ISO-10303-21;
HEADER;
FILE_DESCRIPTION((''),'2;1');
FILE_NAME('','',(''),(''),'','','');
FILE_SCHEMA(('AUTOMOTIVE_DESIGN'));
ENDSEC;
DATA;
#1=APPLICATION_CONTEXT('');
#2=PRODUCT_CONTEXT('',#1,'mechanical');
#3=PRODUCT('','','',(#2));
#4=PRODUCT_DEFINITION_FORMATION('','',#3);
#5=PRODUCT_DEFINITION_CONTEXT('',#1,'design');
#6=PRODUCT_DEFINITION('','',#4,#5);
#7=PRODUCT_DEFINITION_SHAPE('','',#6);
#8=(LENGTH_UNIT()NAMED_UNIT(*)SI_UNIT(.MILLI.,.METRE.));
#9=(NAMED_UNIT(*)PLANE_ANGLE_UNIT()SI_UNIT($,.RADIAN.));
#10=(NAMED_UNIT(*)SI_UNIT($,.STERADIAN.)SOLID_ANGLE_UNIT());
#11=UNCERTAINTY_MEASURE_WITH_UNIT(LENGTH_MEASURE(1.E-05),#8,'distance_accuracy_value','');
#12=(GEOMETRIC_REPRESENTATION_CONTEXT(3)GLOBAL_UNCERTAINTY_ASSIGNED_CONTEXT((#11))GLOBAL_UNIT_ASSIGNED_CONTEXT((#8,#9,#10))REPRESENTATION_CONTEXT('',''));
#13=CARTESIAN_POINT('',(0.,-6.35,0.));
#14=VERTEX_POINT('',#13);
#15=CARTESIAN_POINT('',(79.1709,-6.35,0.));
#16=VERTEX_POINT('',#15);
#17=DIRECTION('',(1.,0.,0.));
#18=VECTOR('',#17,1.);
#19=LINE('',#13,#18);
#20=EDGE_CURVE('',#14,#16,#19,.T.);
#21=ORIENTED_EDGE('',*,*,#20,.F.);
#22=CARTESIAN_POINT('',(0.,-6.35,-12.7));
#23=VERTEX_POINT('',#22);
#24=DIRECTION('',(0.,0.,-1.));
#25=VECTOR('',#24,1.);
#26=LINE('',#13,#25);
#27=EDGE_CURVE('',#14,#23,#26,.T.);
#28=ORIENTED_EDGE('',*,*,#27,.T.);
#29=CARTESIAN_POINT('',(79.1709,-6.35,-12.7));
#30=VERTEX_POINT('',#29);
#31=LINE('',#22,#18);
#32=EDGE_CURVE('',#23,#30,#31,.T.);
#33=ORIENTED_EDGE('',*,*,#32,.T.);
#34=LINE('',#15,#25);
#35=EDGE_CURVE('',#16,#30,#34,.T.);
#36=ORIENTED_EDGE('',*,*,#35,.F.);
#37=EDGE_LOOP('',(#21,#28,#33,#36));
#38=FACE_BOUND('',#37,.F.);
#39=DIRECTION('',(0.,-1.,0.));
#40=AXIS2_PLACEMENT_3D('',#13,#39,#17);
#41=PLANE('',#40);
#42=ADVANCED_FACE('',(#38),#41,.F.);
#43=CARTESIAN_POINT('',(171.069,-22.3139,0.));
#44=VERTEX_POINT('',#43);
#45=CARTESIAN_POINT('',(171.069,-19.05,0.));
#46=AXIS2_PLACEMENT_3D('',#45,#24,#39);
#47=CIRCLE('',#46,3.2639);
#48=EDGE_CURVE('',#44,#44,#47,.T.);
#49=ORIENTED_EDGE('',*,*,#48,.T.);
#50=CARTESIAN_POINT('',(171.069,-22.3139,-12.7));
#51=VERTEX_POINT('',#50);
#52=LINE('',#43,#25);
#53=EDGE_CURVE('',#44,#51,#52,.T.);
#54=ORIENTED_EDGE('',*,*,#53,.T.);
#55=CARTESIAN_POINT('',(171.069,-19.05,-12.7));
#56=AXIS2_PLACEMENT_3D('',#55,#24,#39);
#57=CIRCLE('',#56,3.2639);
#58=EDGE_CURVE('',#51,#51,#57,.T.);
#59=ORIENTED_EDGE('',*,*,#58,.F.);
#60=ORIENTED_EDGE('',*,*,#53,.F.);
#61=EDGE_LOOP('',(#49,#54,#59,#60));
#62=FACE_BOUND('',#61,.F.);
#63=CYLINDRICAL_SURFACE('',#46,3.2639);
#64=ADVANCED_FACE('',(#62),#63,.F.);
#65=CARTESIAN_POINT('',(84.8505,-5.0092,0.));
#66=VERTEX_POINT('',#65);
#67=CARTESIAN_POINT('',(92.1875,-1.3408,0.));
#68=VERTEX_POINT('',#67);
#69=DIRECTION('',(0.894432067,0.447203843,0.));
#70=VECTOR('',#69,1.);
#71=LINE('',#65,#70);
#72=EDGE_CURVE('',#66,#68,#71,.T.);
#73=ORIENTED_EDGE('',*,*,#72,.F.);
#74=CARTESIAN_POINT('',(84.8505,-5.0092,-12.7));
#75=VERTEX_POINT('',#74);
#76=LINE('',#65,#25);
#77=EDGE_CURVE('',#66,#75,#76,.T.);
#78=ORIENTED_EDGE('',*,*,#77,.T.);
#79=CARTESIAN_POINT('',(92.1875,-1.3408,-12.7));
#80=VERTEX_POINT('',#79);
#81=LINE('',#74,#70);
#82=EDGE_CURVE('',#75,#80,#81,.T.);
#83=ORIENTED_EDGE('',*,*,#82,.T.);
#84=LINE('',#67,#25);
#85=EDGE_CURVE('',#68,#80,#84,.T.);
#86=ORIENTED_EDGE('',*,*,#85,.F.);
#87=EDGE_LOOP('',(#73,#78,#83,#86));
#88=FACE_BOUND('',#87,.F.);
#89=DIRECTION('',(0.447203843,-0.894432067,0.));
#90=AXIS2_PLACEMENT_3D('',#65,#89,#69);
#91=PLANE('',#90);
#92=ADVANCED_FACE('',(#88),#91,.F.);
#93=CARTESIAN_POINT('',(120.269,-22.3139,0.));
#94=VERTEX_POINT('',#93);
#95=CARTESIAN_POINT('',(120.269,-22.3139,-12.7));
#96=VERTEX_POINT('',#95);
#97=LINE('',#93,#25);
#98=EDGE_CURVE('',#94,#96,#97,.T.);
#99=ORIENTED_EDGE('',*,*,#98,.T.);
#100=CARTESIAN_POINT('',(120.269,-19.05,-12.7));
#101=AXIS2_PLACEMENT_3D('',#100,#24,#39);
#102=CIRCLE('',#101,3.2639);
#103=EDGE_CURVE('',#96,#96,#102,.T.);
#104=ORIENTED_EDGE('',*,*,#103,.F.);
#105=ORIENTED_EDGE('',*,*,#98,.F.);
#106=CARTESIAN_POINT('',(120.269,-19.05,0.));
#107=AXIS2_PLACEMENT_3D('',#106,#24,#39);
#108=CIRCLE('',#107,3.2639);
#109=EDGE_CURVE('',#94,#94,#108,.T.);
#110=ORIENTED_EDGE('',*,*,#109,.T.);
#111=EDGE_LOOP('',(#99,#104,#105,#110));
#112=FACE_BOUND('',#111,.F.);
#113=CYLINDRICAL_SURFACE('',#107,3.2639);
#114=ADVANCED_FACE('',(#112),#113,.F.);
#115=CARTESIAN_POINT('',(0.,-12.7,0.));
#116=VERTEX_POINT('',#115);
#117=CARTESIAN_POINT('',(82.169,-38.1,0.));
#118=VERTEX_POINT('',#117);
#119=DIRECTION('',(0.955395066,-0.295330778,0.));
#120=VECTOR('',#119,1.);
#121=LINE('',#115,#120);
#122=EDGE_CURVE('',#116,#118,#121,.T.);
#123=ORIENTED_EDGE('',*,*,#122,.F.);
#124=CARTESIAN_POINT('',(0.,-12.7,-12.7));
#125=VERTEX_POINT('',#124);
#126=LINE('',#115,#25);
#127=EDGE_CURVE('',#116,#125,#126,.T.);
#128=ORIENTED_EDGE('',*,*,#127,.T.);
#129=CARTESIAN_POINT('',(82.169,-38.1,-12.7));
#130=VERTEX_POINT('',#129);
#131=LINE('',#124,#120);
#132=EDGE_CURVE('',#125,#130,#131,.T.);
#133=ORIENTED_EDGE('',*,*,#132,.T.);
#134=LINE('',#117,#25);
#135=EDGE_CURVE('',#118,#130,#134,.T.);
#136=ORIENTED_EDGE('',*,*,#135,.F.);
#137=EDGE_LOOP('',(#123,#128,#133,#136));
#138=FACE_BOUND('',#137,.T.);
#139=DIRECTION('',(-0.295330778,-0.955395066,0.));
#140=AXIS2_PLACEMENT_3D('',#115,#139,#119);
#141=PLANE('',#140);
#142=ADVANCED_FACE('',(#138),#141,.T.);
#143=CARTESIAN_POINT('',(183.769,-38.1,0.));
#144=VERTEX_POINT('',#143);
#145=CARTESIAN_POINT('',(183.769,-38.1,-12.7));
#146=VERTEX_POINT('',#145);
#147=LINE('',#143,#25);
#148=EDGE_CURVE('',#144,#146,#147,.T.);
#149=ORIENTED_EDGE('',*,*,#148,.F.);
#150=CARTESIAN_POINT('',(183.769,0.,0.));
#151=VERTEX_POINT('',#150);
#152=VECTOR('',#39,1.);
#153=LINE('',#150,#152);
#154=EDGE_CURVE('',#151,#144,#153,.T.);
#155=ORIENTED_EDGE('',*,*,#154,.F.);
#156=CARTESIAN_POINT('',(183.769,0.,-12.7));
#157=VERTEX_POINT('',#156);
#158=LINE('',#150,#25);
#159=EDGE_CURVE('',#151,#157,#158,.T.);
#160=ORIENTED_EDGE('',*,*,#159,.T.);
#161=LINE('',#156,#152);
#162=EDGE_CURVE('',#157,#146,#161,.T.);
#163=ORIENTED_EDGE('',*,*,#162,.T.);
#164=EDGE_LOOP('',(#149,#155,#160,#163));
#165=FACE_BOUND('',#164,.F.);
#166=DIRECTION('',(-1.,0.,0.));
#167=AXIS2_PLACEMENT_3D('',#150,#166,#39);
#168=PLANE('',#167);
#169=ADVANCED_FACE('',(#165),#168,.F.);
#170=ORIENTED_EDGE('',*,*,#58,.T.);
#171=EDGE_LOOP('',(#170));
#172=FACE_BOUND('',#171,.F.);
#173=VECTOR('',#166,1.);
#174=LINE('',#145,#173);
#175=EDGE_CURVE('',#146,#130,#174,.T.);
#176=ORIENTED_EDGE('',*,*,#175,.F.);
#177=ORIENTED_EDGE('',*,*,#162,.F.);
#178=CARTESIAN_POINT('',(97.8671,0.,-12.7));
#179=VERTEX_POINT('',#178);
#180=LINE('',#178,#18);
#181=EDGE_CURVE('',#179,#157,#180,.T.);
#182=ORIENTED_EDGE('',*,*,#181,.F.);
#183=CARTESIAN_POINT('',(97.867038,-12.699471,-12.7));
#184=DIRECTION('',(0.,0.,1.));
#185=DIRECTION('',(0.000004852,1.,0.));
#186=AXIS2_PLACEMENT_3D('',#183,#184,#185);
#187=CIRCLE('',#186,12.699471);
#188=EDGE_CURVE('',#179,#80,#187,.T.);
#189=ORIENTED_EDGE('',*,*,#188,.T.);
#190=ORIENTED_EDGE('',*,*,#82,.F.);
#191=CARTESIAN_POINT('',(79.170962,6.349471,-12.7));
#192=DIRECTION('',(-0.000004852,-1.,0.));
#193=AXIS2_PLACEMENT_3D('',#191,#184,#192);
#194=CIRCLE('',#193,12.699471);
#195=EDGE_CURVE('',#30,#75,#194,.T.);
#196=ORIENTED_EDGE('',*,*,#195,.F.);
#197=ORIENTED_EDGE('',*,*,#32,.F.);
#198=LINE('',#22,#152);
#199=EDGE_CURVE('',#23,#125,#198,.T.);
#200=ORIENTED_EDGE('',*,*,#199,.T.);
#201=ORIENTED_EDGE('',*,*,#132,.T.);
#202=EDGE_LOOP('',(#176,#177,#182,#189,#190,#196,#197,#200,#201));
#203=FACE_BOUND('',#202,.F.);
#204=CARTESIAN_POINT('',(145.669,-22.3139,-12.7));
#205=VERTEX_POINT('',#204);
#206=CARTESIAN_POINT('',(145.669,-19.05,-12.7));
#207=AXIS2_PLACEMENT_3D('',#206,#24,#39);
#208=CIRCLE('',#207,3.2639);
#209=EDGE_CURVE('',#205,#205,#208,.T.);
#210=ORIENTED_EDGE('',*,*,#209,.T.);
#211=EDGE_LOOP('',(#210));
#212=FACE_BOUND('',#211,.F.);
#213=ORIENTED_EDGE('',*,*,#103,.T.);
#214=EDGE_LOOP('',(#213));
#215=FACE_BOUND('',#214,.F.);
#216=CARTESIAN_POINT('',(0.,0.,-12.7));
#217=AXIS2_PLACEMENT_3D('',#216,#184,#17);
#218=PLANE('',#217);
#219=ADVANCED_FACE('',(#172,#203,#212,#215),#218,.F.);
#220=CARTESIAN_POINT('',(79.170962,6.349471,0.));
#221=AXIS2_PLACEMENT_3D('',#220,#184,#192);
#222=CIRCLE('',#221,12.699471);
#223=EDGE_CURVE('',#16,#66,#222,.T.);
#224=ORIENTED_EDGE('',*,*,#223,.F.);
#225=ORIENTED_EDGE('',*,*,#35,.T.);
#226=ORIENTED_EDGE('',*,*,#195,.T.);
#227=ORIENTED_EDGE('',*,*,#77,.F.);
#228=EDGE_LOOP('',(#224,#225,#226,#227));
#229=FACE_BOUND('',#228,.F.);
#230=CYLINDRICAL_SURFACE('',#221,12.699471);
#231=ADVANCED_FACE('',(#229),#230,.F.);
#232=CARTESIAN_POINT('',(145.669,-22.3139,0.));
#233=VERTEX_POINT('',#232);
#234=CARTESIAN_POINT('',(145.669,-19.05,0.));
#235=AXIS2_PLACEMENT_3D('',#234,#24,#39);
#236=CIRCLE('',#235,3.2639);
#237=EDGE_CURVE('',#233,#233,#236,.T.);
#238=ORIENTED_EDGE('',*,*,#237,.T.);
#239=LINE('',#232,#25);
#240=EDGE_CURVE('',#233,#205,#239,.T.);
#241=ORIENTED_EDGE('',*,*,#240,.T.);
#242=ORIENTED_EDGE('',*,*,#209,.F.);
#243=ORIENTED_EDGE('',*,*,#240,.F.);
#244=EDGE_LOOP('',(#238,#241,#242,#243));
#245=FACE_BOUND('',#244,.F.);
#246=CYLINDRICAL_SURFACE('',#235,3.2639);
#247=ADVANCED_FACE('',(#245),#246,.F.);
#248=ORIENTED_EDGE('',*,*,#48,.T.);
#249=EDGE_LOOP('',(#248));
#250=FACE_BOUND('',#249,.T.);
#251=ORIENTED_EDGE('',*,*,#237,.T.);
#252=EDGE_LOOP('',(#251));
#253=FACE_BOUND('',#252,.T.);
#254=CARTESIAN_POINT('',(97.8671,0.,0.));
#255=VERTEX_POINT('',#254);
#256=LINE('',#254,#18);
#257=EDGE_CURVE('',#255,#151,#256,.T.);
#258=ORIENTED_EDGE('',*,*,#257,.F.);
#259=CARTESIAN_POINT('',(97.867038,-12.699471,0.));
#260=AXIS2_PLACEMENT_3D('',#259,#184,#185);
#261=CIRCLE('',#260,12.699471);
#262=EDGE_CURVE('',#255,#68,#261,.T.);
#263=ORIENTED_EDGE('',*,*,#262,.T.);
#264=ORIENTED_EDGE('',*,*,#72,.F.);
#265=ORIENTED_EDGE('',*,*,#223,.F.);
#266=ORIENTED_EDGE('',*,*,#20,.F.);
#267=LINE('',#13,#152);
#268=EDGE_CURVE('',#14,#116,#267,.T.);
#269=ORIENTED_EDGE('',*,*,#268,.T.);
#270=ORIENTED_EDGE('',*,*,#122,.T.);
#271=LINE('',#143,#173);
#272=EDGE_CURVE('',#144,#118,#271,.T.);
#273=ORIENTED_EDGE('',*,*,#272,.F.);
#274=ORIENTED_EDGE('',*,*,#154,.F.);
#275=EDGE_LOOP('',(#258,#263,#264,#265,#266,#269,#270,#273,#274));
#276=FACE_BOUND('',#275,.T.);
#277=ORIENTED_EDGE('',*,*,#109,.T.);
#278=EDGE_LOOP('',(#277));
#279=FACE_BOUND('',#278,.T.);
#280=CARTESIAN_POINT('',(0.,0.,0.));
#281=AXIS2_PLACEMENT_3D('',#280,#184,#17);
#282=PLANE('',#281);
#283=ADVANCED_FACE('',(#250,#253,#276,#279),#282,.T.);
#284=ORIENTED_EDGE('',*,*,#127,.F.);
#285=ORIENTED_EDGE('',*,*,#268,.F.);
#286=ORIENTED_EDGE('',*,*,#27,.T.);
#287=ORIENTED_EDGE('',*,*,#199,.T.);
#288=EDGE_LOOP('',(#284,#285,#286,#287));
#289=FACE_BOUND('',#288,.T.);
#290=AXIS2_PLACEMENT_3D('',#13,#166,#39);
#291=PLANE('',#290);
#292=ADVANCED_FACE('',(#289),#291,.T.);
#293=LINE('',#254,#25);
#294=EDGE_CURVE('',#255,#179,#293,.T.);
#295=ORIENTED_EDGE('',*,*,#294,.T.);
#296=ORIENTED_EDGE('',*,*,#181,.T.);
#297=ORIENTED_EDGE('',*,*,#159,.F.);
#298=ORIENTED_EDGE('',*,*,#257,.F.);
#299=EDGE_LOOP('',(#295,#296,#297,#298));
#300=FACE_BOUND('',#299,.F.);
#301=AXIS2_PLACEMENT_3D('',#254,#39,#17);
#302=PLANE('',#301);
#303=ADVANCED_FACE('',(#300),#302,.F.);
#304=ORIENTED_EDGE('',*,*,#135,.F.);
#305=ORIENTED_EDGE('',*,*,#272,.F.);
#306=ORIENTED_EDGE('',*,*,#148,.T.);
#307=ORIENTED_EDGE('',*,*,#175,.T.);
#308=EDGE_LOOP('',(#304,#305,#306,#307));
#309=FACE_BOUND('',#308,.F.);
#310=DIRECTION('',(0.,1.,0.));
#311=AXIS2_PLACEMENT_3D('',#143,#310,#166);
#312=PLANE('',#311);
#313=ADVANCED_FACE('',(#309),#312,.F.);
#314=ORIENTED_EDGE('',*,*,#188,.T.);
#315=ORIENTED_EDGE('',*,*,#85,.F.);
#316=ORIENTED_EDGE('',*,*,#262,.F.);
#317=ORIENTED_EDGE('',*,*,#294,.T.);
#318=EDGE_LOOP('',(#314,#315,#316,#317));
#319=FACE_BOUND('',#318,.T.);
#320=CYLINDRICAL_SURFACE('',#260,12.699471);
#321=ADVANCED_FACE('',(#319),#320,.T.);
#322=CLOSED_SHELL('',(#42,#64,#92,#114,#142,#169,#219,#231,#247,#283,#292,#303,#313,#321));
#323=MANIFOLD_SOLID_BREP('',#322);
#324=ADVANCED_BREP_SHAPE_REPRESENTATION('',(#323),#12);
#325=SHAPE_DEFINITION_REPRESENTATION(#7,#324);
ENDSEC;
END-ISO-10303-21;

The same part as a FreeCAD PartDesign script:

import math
import FreeCAD as App
import Part
import Sketcher
from FreeCAD import Vector
Q = App.Units.Quantity

doc = App.newDocument("Part")
body = doc.addObject("PartDesign::Body", "Body")

sketch1 = body.newObject("Sketcher::SketchObject", "Sketch")
sketch1.AttachmentSupport = (doc.getObject("XY_Plane"), [""])
sketch1.MapMode = "FlatFace"
sketch1.addGeometry([
    Part.LineSegment(Vector(183.769, -38.1, 0), Vector(183.769, 0, 0)),
    Part.LineSegment(Vector(183.769, 0, 0), Vector(97.8671, 0, 0)),
    Part.ArcOfCircle(Part.Circle(Vector(97.8671, -12.7, 0), Vector(0, 0, 1), 12.7), math.radians(90), math.radians(116.565051)),
    Part.LineSegment(Vector(92.1875, -1.3408, 0), Vector(84.8505, -5.0092, 0)),
    Part.ArcOfCircle(Part.Circle(Vector(79.1709, 6.35, 0), Vector(0, 0, 1), 12.7), math.radians(-90), math.radians(-63.434949)),
    Part.LineSegment(Vector(79.1709, -6.35, 0), Vector(0, -6.35, 0)),
    Part.LineSegment(Vector(0, -6.35, 0), Vector(0, -12.7, 0)),
    Part.LineSegment(Vector(0, -12.7, 0), Vector(82.169, -38.1, 0)),
    Part.LineSegment(Vector(82.169, -38.1, 0), Vector(183.769, -38.1, 0)),
], False)
sketch1.addConstraint([
    Sketcher.Constraint("Coincident", 0, 2, 1, 1),
    Sketcher.Constraint("Tangent", 1, 2, 2, 1),
    Sketcher.Constraint("Tangent", 2, 2, 3, 1),
    Sketcher.Constraint("Tangent", 3, 2, 4, 2),
    Sketcher.Constraint("Tangent", 4, 1, 5, 1),
    Sketcher.Constraint("Coincident", 5, 2, 6, 1),
    Sketcher.Constraint("Coincident", 6, 2, 7, 1),
    Sketcher.Constraint("Coincident", 7, 2, 8, 1),
    Sketcher.Constraint("Coincident", 8, 2, 0, 1),
    Sketcher.Constraint("Vertical", 0),
    Sketcher.Constraint("Horizontal", 1),
    Sketcher.Constraint("Horizontal", 5),
    Sketcher.Constraint("Vertical", 6),
    Sketcher.Constraint("Horizontal", 8),
    Sketcher.Constraint("Equal", 2, 4),
    Sketcher.Constraint("PointOnObject", 0, 2, -1),
    Sketcher.Constraint("PointOnObject", 5, 2, -2),
    Sketcher.Constraint("Horizontal", 2, 3, 6, 2),
    Sketcher.Constraint("Radius", 2, Q("0.5 in")),
    Sketcher.Constraint("DistanceX", 8, 1, 8, 2, Q("4 in")),
    Sketcher.Constraint("DistanceY", 0, 1, 0, 2, Q("1.5 in")),
    Sketcher.Constraint("DistanceY", 6, 2, 6, 1, Q("0.25 in")),
    Sketcher.Constraint("DistanceX", -1, 1, 7, 2, Q("3.235 in")),
    Sketcher.Constraint("DistanceX", 5, 2, 5, 1, 79.171),
    Sketcher.Constraint("DistanceX", 1, 2, 1, 1, 85.902),
])
pad1 = body.newObject("PartDesign::Pad", "Pad")
pad1.Profile = sketch1
pad1.Length = Q("0.5 in")
pad1.Reversed = True

sketch2 = body.newObject("Sketcher::SketchObject", "Sketch001")
sketch2.AttachmentSupport = (doc.getObject("XY_Plane"), [""])
sketch2.MapMode = "FlatFace"
sketch2.addGeometry([
    Part.Circle(Vector(120.269, -19.05, 0), Vector(0, 0, 1), 3.2639),
    Part.Circle(Vector(145.669, -19.05, 0), Vector(0, 0, 1), 3.2639),
    Part.Circle(Vector(171.069, -19.05, 0), Vector(0, 0, 1), 3.2639),
], False)
sketch2.addConstraint([
    Sketcher.Constraint("Equal", 0, 1),
    Sketcher.Constraint("Equal", 1, 2),
    Sketcher.Constraint("Horizontal", 0, 3, 1, 3),
    Sketcher.Constraint("Horizontal", 1, 3, 2, 3),
    Sketcher.Constraint("Diameter", 0, Q("0.257 in")),
    Sketcher.Constraint("DistanceX", 0, 3, 1, 3, Q("1 in")),
    Sketcher.Constraint("DistanceX", 1, 3, 2, 3, Q("1 in")),
    Sketcher.Constraint("DistanceY", 0, 3, -1, 1, Q("0.75 in")),
    Sketcher.Constraint("DistanceX", -1, 1, 0, 3, Q("4.735 in")),
])
doc.recompute()
hole = body.newObject("PartDesign::Hole", "Hole")
hole.Profile = sketch2
hole.ThreadType = "None"
hole.Diameter = Q("0.257 in")
hole.DepthType = "ThroughAll"

doc.recompute()
